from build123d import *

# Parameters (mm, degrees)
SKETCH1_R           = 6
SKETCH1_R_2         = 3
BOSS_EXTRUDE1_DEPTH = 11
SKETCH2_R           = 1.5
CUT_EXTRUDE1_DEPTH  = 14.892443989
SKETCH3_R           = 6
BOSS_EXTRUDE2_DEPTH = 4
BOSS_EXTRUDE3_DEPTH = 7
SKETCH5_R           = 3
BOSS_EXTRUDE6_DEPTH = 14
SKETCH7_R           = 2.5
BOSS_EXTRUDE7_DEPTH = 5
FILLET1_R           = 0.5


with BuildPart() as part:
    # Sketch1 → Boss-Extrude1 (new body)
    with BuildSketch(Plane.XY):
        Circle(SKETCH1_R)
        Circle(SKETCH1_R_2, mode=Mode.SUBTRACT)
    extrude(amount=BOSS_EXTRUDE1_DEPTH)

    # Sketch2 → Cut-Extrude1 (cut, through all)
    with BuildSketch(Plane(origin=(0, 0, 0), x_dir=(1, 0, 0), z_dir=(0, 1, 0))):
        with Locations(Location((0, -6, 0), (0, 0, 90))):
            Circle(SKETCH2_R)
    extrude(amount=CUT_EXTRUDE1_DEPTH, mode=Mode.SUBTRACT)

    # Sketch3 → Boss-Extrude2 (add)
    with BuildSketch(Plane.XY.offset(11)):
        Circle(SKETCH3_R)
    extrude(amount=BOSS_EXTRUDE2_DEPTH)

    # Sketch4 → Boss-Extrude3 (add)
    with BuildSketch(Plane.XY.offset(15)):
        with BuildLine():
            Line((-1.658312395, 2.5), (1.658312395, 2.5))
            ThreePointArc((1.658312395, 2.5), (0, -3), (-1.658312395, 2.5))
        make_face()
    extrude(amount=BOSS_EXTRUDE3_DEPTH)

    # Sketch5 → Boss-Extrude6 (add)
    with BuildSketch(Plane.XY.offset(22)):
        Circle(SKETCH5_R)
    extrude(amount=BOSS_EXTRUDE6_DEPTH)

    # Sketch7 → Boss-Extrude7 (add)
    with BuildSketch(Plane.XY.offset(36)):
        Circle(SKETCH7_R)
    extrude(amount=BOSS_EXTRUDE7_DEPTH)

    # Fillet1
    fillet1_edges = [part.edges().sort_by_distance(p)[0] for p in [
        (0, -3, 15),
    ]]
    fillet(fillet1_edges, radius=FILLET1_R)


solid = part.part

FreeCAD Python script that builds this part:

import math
import FreeCAD as App
import Part
import Sketcher
from FreeCAD import Vector
Q = App.Units.Quantity


def edges_at(feature, points):
    """Names of the edges that pass closest to the given points."""
    edges = feature.Shape.Edges
    near = lambda p: min(range(len(edges)), key=lambda i: edges[i].distToShape(Part.Vertex(*p))[0])
    return sorted({f"Edge{near(p) + 1}" for p in points})

doc = App.newDocument("Part")
body = doc.addObject("PartDesign::Body", "Body")

sketch1 = body.newObject("Sketcher::SketchObject", "Sketch")
sketch1.AttachmentSupport = (doc.getObject("XY_Plane"), [""])
sketch1.MapMode = "FlatFace"
sketch1.addGeometry([
    Part.Circle(Vector(0, 0, 0), Vector(0, 0, 1), 6),
    Part.Circle(Vector(0, 0, 0), Vector(0, 0, 1), 3),
], False)
sketch1.addConstraint([
    Sketcher.Constraint("Coincident", 0, 3, -1, 1),
    Sketcher.Constraint("Coincident", 1, 3, -1, 1),
    Sketcher.Constraint("Diameter", 0, Q("12 mm")),
    Sketcher.Constraint("Diameter", 1, Q("6 mm")),
])
pad1 = body.newObject("PartDesign::Pad", "Pad")
pad1.Profile = sketch1
pad1.Length = 11

sketch2 = body.newObject("Sketcher::SketchObject", "Sketch001")
sketch2.AttachmentSupport = (doc.getObject("XZ_Plane"), [""])
sketch2.MapMode = "FlatFace"
sketch2.addGeometry(Part.Circle(Vector(0, 6, 0), Vector(0, 0, 1), 1.5), False)
sketch2.addConstraint([
    Sketcher.Constraint("PointOnObject", 0, 3, -2),
    Sketcher.Constraint("Diameter", 0, Q("3 mm")),
    Sketcher.Constraint("DistanceY", -1, 1, 0, 3, Q("6 mm")),
])
pocket1 = body.newObject("PartDesign::Pocket", "Pocket")
pocket1.Profile = sketch2
pocket1.Type = "ThroughAll"

sketch3 = body.newObject("Sketcher::SketchObject", "Sketch002")
sketch3.AttachmentSupport = (doc.getObject("XY_Plane"), [""])
sketch3.MapMode = "FlatFace"
sketch3.AttachmentOffset = App.Placement(Vector(0, 0, 11), App.Rotation())
sketch3.addGeometry(Part.Circle(Vector(0, 0, 0), Vector(0, 0, 1), 6), False)
sketch3.addConstraint([
    Sketcher.Constraint("Coincident", 0, 3, -1, 1),
    Sketcher.Constraint("Diameter", 0, Q("12 mm")),
])
pad2 = body.newObject("PartDesign::Pad", "Pad001")
pad2.Profile = sketch3
pad2.Length = 4

sketch4 = body.newObject("Sketcher::SketchObject", "Sketch003")
sketch4.AttachmentSupport = (doc.getObject("XY_Plane"), [""])
sketch4.MapMode = "FlatFace"
sketch4.AttachmentOffset = App.Placement(Vector(0, 0, 15), App.Rotation())
sketch4.addGeometry([
    Part.LineSegment(Vector(1.7, 2.5, 0), Vector(-1.7, 2.5, 0)),
    Part.ArcOfCircle(Part.Circle(Vector(0, 0, 0), Vector(0, 0, 1), 3), math.radians(124), math.radians(416)),
], False)
sketch4.addConstraint([
    Sketcher.Constraint("Coincident", 0, 1, 1, 2),
    Sketcher.Constraint("Coincident", 1, 1, 0, 2),
    Sketcher.Constraint("Horizontal", 0),
    Sketcher.Constraint("Coincident", 1, 3, -1, 1),
    Sketcher.Constraint("Radius", 1, Q("3 mm")),
    Sketcher.Constraint("DistanceY", -1, 1, 0, 1, Q("2.5 mm")),
])
pad3 = body.newObject("PartDesign::Pad", "Pad002")
pad3.Profile = sketch4
pad3.Length = 7

sketch5 = body.newObject("Sketcher::SketchObject", "Sketch004")
sketch5.AttachmentSupport = (doc.getObject("XY_Plane"), [""])
sketch5.MapMode = "FlatFace"
sketch5.AttachmentOffset = App.Placement(Vector(0, 0, 22), App.Rotation())
sketch5.addGeometry(Part.Circle(Vector(0, 0, 0), Vector(0, 0, 1), 3), False)
sketch5.addConstraint([
    Sketcher.Constraint("Coincident", 0, 3, -1, 1),
    Sketcher.Constraint("Diameter", 0, Q("6 mm")),
])
pad4 = body.newObject("PartDesign::Pad", "Pad003")
pad4.Profile = sketch5
pad4.Length = 14

sketch6 = body.newObject("Sketcher::SketchObject", "Sketch005")
sketch6.AttachmentSupport = (doc.getObject("XY_Plane"), [""])
sketch6.MapMode = "FlatFace"
sketch6.AttachmentOffset = App.Placement(Vector(0, 0, 36), App.Rotation())
sketch6.addGeometry(Part.Circle(Vector(0, 0, 0), Vector(0, 0, 1), 2.5), False)
sketch6.addConstraint([
    Sketcher.Constraint("Coincident", 0, 3, -1, 1),
    Sketcher.Constraint("Diameter", 0, Q("5 mm")),
])
pad5 = body.newObject("PartDesign::Pad", "Pad004")
pad5.Profile = sketch6
pad5.Length = 5
doc.recompute()

fillet = body.newObject("PartDesign::Fillet", "Fillet")
fillet.Base = (pad5, edges_at(pad5, [(0, -3, 15)]))
fillet.Radius = 0.5

doc.recompute()
